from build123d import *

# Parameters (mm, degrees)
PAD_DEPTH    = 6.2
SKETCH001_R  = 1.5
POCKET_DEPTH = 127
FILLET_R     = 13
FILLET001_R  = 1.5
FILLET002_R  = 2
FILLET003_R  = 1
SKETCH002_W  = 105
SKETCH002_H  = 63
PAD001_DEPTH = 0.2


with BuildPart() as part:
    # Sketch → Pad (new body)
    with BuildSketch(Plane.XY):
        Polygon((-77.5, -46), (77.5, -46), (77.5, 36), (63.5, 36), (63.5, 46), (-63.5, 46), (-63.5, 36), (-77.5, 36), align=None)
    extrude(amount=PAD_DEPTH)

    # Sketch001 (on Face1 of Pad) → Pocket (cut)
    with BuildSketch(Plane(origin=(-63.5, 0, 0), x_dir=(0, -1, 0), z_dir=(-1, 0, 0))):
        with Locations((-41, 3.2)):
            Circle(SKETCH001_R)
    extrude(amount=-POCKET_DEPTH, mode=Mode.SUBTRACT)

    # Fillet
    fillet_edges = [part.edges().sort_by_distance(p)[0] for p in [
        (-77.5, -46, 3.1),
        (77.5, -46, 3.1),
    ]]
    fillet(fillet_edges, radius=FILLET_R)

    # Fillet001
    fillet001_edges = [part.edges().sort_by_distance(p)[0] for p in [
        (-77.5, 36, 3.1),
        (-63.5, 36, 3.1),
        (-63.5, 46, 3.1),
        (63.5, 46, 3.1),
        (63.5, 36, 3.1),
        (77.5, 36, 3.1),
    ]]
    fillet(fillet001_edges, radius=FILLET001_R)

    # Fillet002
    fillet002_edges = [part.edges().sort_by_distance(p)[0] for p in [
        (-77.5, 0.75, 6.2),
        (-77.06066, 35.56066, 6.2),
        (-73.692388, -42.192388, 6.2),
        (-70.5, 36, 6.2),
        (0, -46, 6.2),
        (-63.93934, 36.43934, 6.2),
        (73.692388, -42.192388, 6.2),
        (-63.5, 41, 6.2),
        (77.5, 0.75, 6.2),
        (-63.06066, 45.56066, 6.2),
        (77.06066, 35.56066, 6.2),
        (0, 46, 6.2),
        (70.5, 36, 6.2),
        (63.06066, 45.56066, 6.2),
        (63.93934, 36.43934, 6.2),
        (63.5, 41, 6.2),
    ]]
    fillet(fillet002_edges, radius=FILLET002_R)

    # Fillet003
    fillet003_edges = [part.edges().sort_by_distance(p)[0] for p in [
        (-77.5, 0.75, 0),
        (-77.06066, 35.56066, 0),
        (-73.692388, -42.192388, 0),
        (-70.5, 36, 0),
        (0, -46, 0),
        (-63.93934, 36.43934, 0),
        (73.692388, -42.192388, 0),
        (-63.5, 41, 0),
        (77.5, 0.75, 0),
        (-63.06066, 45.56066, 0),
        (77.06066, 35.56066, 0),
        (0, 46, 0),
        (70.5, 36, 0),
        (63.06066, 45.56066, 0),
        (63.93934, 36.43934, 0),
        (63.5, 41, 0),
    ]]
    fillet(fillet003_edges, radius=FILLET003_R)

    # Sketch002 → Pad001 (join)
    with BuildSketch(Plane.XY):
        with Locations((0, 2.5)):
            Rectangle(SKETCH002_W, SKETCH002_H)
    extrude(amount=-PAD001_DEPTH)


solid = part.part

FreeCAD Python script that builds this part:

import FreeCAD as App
import Part
import Sketcher
Q = App.Units.Quantity


def edges_at(feature, points):
    """Names of the edges that pass closest to the given points."""
    edges = feature.Shape.Edges
    near = lambda p: min(range(len(edges)), key=lambda i: edges[i].distToShape(Part.Vertex(*p))[0])
    return sorted({f"Edge{near(p) + 1}" for p in points})

doc = App.newDocument("Part")
body = doc.addObject("PartDesign::Body", "Body")

# Sketch on XY plane
sketch1 = body.newObject("Sketcher::SketchObject", "Sketch")
sketch1.AttachmentSupport = (doc.getObject("XY_Plane"), [""])
sketch1.MapMode = "FlatFace"
sketch1.addGeometry([
    Part.LineSegment(App.Vector(-78, -46, 0), App.Vector(78, -46, 0)),  # 0
    Part.LineSegment(App.Vector(78, -46, 0), App.Vector(78, 36, 0)),  # 1
    Part.LineSegment(App.Vector(78, 36, 0), App.Vector(64, 36, 0)),  # 2
    Part.LineSegment(App.Vector(64, 36, 0), App.Vector(64, 46, 0)),  # 3
    Part.LineSegment(App.Vector(64, 46, 0), App.Vector(-64, 46, 0)),  # 4
    Part.LineSegment(App.Vector(-64, 46, 0), App.Vector(-64, 36, 0)),  # 5
    Part.LineSegment(App.Vector(-64, 36, 0), App.Vector(-78, 36, 0)),  # 6
    Part.LineSegment(App.Vector(-78, 36, 0), App.Vector(-78, -46, 0)),  # 7
], False)
sketch1.addConstraint([
    Sketcher.Constraint("Coincident", 0, 2, 1, 1),
    Sketcher.Constraint("Coincident", 1, 2, 2, 1),
    Sketcher.Constraint("Coincident", 2, 2, 3, 1),
    Sketcher.Constraint("Coincident", 3, 2, 4, 1),
    Sketcher.Constraint("Coincident", 4, 2, 5, 1),
    Sketcher.Constraint("Coincident", 5, 2, 6, 1),
    Sketcher.Constraint("Coincident", 6, 2, 7, 1),
    Sketcher.Constraint("Coincident", 7, 2, 0, 1),
    Sketcher.Constraint("Horizontal", 0),
    Sketcher.Constraint("Vertical", 1),
    Sketcher.Constraint("Horizontal", 2),
    Sketcher.Constraint("Vertical", 3),
    Sketcher.Constraint("Horizontal", 4),
    Sketcher.Constraint("Vertical", 5),
    Sketcher.Constraint("Horizontal", 6),
    Sketcher.Constraint("Vertical", 7),
    Sketcher.Constraint("Symmetric", 2, 2, 5, 2, -2),
    Sketcher.Constraint("Equal", 2, 6),
    Sketcher.Constraint("DistanceX", 0, 1, 0, 2, Q("155 mm")),
    Sketcher.Constraint("DistanceX", 2, 2, 2, 1, Q("14 mm")),
    Sketcher.Constraint("DistanceY", 1, 1, 1, 2, Q("82 mm")),
    Sketcher.Constraint("DistanceY", 3, 1, 3, 2, Q("10 mm")),
    Sketcher.Constraint("DistanceY", 0, 2, -1, 1, Q("46 mm")),
])
pad1 = body.newObject("PartDesign::Pad", "Pad")
pad1.Profile = sketch1
pad1.Length = 6.2

# Sketch on YZ plane
sketch2 = body.newObject("Sketcher::SketchObject", "Sketch001")
sketch2.AttachmentSupport = (doc.getObject("YZ_Plane"), [""])
sketch2.MapMode = "FlatFace"
sketch2.AttachmentOffset = App.Placement(App.Vector(0, 0, -63.5), App.Rotation())
sketch2.addGeometry(Part.Circle(App.Vector(41, 3.2, 0), App.Vector(0, 0, 1), 1.5), False)
sketch2.addConstraint([
    Sketcher.Constraint("Diameter", 0, Q("3 mm")),
    Sketcher.Constraint("DistanceX", -1, 1, 0, 3, Q("41 mm")),
    Sketcher.Constraint("DistanceY", -1, 1, 0, 3, Q("3.2 mm")),
])
pocket1 = body.newObject("PartDesign::Pocket", "Pocket")
pocket1.Profile = sketch2
pocket1.Length = 127
pocket1.Reversed = True
doc.recompute()

fillet = body.newObject("PartDesign::Fillet", "Fillet")
fillet.Base = (pocket1, edges_at(pocket1, [(-77.5, -46, 3.1), (77.5, -46, 3.1)]))
fillet.Radius = 13
doc.recompute()

fillet2 = body.newObject("PartDesign::Fillet", "Fillet001")
fillet2.Base = (fillet, edges_at(fillet, [
    (-77.5, 36, 3.1),
    (-63.5, 36, 3.1),
    (-63.5, 46, 3.1),
    (63.5, 46, 3.1),
    (63.5, 36, 3.1),
    (77.5, 36, 3.1),
]))
fillet2.Radius = 1.5
doc.recompute()

fillet3 = body.newObject("PartDesign::Fillet", "Fillet002")
fillet3.Base = (fillet2, edges_at(fillet2, [
    (-77.5, 0.75, 6.2),
    (-77.061, 35.561, 6.2),
    (-73.692, -42.192, 6.2),
    (-70.5, 36, 6.2),
    (0, -46, 6.2),
    (-63.939, 36.439, 6.2),
    (73.692, -42.192, 6.2),
    (-63.5, 41, 6.2),
    (77.5, 0.75, 6.2),
    (-63.061, 45.561, 6.2),
    (77.061, 35.561, 6.2),
    (0, 46, 6.2),
    (70.5, 36, 6.2),
    (63.061, 45.561, 6.2),
    (63.939, 36.439, 6.2),
    (63.5, 41, 6.2),
]))
fillet3.Radius = 2
doc.recompute()

fillet4 = body.newObject("PartDesign::Fillet", "Fillet003")
fillet4.Base = (fillet3, edges_at(fillet3, [
    (-77.5, 0.75, 0),
    (-77.061, 35.561, 0),
    (-73.692, -42.192, 0),
    (-70.5, 36, 0),
    (0, -46, 0),
    (-63.939, 36.439, 0),
    (73.692, -42.192, 0),
    (-63.5, 41, 0),
    (77.5, 0.75, 0),
    (-63.061, 45.561, 0),
    (77.061, 35.561, 0),
    (0, 46, 0),
    (70.5, 36, 0),
    (63.061, 45.561, 0),
    (63.939, 36.439, 0),
    (63.5, 41, 0),
]))
fillet4.Radius = 1

# Sketch on XY plane
sketch3 = body.newObject("Sketcher::SketchObject", "Sketch002")
sketch3.AttachmentSupport = (doc.getObject("XY_Plane"), [""])
sketch3.MapMode = "FlatFace"
sketch3.addGeometry([
    Part.LineSegment(App.Vector(-52, 34, 0), App.Vector(-52, -29, 0)),
    Part.LineSegment(App.Vector(-52, -29, 0), App.Vector(52, -29, 0)),
    Part.LineSegment(App.Vector(52, -29, 0), App.Vector(52, 34, 0)),
    Part.LineSegment(App.Vector(52, 34, 0), App.Vector(-52, 34, 0)),
], False)
sketch3.addConstraint([
    Sketcher.Constraint("Coincident", 0, 2, 1, 1),
    Sketcher.Constraint("Coincident", 1, 2, 2, 1),
    Sketcher.Constraint("Coincident", 2, 2, 3, 1),
    Sketcher.Constraint("Coincident", 3, 2, 0, 1),
    Sketcher.Constraint("Vertical", 0),
    Sketcher.Constraint("Horizontal", 1),
    Sketcher.Constraint("Vertical", 2),
    Sketcher.Constraint("Horizontal", 3),
    Sketcher.Constraint("DistanceX", 1, 1, 1, 2, Q("105 mm")),
    Sketcher.Constraint("DistanceY", 0, 2, 0, 1, Q("63 mm")),
    Sketcher.Constraint("DistanceY", 0, 2, -1, 1, Q("29 mm")),
    Sketcher.Constraint("DistanceX", 0, 2, -1, 1, Q("52.5 mm")),
])
pad2 = body.newObject("PartDesign::Pad", "Pad001")
pad2.Profile = sketch3
pad2.Length = 0.2
pad2.Reversed = True

doc.recompute()
